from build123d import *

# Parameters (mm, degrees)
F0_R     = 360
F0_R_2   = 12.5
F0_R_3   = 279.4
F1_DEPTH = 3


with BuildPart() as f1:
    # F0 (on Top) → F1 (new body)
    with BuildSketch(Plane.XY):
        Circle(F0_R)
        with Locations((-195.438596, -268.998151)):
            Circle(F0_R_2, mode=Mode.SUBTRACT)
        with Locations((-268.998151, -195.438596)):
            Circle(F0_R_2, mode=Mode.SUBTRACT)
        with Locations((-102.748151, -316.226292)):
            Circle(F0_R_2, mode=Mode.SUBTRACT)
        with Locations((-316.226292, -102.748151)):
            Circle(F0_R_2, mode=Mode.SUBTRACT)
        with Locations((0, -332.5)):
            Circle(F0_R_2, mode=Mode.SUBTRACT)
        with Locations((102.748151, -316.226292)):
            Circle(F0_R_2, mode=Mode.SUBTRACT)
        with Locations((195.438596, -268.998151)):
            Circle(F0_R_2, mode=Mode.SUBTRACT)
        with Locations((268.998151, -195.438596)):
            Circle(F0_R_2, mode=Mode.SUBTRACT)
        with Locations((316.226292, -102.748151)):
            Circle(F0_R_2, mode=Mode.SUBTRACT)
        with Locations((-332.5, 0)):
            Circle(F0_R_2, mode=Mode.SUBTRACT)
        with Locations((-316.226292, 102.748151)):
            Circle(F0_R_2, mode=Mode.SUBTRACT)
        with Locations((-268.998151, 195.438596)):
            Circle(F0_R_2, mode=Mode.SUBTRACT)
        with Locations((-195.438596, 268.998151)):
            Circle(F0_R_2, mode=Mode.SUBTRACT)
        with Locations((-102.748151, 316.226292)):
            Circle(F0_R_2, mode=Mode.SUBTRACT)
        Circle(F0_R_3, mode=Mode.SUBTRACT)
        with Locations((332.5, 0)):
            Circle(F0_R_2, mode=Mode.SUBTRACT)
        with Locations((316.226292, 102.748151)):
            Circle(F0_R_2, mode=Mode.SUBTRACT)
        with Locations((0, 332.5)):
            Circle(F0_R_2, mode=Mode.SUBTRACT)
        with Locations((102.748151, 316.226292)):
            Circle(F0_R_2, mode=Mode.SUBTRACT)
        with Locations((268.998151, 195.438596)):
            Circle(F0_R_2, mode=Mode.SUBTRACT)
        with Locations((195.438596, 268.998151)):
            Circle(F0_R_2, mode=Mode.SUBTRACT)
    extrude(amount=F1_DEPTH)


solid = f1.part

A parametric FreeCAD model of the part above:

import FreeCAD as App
import Part
import Sketcher

V = App.Vector

doc = App.newDocument("Part")
body = doc.addObject("PartDesign::Body", "Body")

sketch1 = body.newObject("Sketcher::SketchObject", "Sketch")
sketch1.AttachmentSupport = (doc.getObject("XY_Plane"), [""])
sketch1.MapMode = "FlatFace"
sketch1.addGeometry([
    Part.Circle(V(0, 0, 0), V(0, 0, 1), 360),
    Part.Circle(V(-195, -269, 0), V(0, 0, 1), 12),
    Part.Circle(V(-269, -195, 0), V(0, 0, 1), 12),
    Part.Circle(V(-103, -316, 0), V(0, 0, 1), 12),
    Part.Circle(V(-316, -103, 0), V(0, 0, 1), 12),
    Part.Circle(V(0, -332, 0), V(0, 0, 1), 12),
    Part.Circle(V(103, -316, 0), V(0, 0, 1), 12),
    Part.Circle(V(195, -269, 0), V(0, 0, 1), 12),
    Part.Circle(V(269, -195, 0), V(0, 0, 1), 12),
    Part.Circle(V(316, -103, 0), V(0, 0, 1), 12),
    Part.Circle(V(-332, 0, 0), V(0, 0, 1), 12),
    Part.Circle(V(-316, 103, 0), V(0, 0, 1), 12),
    Part.Circle(V(-269, 195, 0), V(0, 0, 1), 12),
    Part.Circle(V(-195, 269, 0), V(0, 0, 1), 12),
    Part.Circle(V(-103, 316, 0), V(0, 0, 1), 12),
    Part.Circle(V(0, 0, 0), V(0, 0, 1), 279),
    Part.Circle(V(332, 0, 0), V(0, 0, 1), 12),
    Part.Circle(V(316, 103, 0), V(0, 0, 1), 12),
    Part.Circle(V(0, 332, 0), V(0, 0, 1), 12),
    Part.Circle(V(103, 316, 0), V(0, 0, 1), 12),
    Part.Circle(V(269, 195, 0), V(0, 0, 1), 12),
    Part.Circle(V(195, 269, 0), V(0, 0, 1), 12),
], False)
sketch1.addConstraint([
    Sketcher.Constraint("Coincident", 0, 3, -1, 1),
    Sketcher.Constraint("Coincident", 15, 3, -1, 1),
    Sketcher.Constraint("Equal", 1, 2),
    Sketcher.Constraint("Equal", 2, 3),
    Sketcher.Constraint("Equal", 3, 4),
    Sketcher.Constraint("Equal", 4, 5),
    Sketcher.Constraint("Equal", 5, 6),
    Sketcher.Constraint("Equal", 6, 7),
    Sketcher.Constraint("Equal", 7, 8),
    Sketcher.Constraint("Equal", 8, 9),
    Sketcher.Constraint("Equal", 9, 10),
    Sketcher.Constraint("Equal", 10, 11),
    Sketcher.Constraint("Equal", 11, 12),
    Sketcher.Constraint("Equal", 12, 13),
    Sketcher.Constraint("Equal", 13, 14),
    Sketcher.Constraint("Equal", 14, 16),
    Sketcher.Constraint("Equal", 16, 17),
    Sketcher.Constraint("Equal", 17, 18),
    Sketcher.Constraint("Equal", 18, 19),
    Sketcher.Constraint("Equal", 19, 20),
    Sketcher.Constraint("Equal", 20, 21),
    Sketcher.Constraint("Symmetric", 9, 3, 11, 3, -1, 1),
    Sketcher.Constraint("Symmetric", 8, 3, 12, 3, -1, 1),
    Sketcher.Constraint("Symmetric", 7, 3, 13, 3, -1, 1),
    Sketcher.Constraint("Symmetric", 6, 3, 14, 3, -1, 1),
    Sketcher.Constraint("Symmetric", 10, 3, 16, 3, -1, 1),
    Sketcher.Constraint("Symmetric", 4, 3, 17, 3, -1, 1),
    Sketcher.Constraint("Symmetric", 5, 3, 18, 3, -1, 1),
    Sketcher.Constraint("Symmetric", 3, 3, 19, 3, -1, 1),
    Sketcher.Constraint("Symmetric", 2, 3, 20, 3, -1, 1),
    Sketcher.Constraint("Symmetric", 1, 3, 21, 3, -1, 1),
    Sketcher.Constraint("Symmetric", 3, 3, 6, 3, -2),
    Sketcher.Constraint("Symmetric", 1, 3, 7, 3, -2),
    Sketcher.Constraint("Symmetric", 2, 3, 8, 3, -2),
    Sketcher.Constraint("Symmetric", 4, 3, 9, 3, -2),
    Sketcher.Constraint("PointOnObject", 5, 3, -2),
    Sketcher.Constraint("PointOnObject", 10, 3, -1),
    Sketcher.Constraint("Diameter", 0, 720.0),
    Sketcher.Constraint("Diameter", 1, 25.0),
    Sketcher.Constraint("Diameter", 15, 558.8),
    Sketcher.Constraint("DistanceY", 5, 3, -1, 1, 332.5),
    Sketcher.Constraint("DistanceX", 10, 3, -1, 1, 332.5),
    Sketcher.Constraint("DistanceX", 2, 3, 3, 3, 166.25),
    Sketcher.Constraint("DistanceY", 1, 3, 4, 3, 166.25),
    Sketcher.Constraint("DistanceX", 3, 3, 6, 3, 205.496302),
    Sketcher.Constraint("DistanceY", 4, 3, 11, 3, 205.496302),
    Sketcher.Constraint("DistanceY", 3, 3, -1, 1, 316.226292),
    Sketcher.Constraint("DistanceX", 4, 3, -1, 1, 316.226292),
    Sketcher.Constraint("DistanceX", 1, 3, 7, 3, 390.877192),
    Sketcher.Constraint("DistanceY", 2, 3, 12, 3, 390.877192),
])
pad1 = body.newObject("PartDesign::Pad", "Pad")
pad1.Profile = sketch1
pad1.Length = 3

doc.recompute()
